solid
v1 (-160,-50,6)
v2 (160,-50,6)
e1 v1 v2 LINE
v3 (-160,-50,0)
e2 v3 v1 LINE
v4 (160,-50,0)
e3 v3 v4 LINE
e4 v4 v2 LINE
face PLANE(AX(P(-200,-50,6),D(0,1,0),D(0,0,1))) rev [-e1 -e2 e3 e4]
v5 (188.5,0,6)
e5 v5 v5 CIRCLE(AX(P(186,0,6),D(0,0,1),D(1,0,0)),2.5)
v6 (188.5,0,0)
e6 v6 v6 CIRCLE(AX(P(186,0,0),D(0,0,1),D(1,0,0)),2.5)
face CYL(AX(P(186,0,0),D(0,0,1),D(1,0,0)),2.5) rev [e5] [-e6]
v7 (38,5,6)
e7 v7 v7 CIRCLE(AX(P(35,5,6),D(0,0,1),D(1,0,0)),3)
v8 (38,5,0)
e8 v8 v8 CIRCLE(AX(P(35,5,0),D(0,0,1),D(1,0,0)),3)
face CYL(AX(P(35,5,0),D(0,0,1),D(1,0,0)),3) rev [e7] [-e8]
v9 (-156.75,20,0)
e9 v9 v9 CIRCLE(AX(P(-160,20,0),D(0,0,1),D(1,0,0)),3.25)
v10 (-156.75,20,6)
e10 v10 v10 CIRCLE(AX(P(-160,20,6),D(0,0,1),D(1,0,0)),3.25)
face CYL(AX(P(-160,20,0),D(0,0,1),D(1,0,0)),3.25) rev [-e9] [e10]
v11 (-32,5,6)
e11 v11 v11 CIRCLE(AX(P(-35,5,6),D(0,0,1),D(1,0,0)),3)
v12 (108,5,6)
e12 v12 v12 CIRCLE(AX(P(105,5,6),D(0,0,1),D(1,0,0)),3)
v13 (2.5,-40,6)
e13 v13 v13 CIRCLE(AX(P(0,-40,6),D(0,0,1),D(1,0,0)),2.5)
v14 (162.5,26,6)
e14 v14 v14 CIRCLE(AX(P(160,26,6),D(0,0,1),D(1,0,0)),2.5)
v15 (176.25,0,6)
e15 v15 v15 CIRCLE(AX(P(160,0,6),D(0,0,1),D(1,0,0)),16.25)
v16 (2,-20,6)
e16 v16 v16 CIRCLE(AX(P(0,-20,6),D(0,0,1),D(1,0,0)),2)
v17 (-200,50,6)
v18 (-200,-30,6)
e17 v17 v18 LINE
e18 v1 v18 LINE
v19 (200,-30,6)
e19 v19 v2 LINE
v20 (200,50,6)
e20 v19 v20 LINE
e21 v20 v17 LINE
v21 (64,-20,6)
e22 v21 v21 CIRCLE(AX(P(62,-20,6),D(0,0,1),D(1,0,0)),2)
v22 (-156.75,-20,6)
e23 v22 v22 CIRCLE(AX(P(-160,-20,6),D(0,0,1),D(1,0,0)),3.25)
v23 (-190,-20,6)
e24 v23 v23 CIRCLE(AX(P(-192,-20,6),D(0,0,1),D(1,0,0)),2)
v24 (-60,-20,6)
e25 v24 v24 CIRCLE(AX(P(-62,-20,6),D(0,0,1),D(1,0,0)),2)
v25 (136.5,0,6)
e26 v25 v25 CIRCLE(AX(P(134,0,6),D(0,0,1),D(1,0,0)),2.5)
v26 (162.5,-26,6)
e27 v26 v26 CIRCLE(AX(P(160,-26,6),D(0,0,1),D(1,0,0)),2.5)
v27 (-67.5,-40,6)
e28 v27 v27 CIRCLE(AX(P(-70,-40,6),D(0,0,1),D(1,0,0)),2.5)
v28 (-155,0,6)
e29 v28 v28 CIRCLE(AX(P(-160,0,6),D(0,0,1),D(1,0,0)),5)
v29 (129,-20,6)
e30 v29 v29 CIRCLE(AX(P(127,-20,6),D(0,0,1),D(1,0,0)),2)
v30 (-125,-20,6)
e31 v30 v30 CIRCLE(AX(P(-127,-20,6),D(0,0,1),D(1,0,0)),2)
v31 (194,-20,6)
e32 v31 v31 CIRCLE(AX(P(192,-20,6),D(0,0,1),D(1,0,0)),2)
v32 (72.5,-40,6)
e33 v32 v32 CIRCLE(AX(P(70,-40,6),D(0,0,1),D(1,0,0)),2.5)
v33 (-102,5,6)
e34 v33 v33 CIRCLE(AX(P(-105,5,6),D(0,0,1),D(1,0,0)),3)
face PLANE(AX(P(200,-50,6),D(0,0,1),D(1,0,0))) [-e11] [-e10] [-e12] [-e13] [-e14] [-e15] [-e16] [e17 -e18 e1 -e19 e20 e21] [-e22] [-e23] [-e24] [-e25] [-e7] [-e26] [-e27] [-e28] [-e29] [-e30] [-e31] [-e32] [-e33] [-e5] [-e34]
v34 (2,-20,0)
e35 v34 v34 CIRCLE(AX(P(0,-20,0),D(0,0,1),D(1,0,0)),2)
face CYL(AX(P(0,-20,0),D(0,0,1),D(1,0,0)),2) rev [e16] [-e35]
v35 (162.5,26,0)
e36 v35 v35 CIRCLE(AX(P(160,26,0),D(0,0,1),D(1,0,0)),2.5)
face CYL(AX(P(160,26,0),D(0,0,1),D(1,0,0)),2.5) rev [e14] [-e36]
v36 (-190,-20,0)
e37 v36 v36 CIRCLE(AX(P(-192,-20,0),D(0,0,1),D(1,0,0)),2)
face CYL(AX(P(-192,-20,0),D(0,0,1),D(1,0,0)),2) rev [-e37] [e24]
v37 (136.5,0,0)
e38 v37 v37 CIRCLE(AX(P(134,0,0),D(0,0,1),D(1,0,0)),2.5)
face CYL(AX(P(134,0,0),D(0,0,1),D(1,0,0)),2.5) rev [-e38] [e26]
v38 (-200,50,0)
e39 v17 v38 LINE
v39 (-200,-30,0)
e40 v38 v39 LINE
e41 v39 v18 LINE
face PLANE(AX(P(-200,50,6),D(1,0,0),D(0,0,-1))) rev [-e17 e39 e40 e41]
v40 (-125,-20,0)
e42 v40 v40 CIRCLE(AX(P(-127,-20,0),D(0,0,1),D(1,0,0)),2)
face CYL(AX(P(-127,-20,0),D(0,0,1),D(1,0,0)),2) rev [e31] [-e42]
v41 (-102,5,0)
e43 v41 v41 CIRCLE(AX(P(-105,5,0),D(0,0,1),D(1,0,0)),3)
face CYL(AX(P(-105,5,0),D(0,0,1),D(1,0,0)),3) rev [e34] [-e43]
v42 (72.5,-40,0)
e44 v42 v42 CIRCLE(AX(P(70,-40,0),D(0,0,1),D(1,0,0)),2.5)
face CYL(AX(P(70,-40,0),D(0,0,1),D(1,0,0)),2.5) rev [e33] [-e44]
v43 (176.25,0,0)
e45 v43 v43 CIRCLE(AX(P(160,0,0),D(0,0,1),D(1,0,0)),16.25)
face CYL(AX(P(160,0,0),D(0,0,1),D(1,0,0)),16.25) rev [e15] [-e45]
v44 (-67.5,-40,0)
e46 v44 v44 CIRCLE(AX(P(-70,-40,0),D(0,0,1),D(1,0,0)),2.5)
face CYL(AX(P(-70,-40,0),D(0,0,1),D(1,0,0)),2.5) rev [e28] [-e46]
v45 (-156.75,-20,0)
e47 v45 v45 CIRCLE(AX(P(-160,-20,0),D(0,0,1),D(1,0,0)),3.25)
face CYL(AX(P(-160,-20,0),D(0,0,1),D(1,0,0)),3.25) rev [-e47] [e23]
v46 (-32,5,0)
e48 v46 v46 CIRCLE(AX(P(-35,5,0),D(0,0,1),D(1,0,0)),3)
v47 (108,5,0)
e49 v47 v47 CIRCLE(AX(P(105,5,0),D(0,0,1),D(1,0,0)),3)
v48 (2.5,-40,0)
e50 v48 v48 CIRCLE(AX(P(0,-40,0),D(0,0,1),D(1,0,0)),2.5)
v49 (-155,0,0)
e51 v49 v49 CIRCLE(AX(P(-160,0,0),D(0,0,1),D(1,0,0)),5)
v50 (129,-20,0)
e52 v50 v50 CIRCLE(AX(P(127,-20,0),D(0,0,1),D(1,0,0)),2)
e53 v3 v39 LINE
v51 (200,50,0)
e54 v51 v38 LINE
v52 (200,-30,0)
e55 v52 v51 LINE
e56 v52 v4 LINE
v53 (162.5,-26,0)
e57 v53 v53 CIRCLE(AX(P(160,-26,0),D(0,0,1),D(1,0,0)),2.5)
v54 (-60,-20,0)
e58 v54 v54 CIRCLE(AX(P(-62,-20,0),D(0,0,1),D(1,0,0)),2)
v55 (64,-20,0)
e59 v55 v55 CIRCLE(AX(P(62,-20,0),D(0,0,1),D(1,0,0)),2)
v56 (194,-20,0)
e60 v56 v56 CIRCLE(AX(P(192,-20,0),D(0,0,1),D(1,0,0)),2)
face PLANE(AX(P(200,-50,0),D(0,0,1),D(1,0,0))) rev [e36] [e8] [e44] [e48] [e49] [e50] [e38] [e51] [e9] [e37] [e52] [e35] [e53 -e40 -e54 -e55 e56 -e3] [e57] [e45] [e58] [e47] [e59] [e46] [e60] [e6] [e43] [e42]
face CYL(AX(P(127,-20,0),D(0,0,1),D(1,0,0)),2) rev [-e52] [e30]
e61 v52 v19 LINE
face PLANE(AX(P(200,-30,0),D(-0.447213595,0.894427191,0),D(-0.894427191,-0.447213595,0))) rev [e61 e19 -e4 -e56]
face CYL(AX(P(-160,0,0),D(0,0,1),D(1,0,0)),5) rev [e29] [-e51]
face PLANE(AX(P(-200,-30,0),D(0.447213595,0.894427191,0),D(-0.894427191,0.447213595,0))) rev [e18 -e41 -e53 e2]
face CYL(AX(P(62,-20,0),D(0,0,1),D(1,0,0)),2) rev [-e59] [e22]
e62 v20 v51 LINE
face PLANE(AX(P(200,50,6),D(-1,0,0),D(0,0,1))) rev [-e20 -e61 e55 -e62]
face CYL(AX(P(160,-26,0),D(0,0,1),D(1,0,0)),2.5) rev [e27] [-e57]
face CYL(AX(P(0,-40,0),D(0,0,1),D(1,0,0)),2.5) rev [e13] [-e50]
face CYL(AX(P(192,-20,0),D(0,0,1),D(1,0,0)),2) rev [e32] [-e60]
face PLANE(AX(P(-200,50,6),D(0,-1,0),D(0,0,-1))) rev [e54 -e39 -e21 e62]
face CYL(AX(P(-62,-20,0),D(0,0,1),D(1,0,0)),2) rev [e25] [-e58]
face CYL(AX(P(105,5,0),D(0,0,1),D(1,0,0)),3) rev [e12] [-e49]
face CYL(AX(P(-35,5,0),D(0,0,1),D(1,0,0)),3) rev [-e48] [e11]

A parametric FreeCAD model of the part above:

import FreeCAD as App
import Part
import Sketcher
from FreeCAD import Vector
Q = App.Units.Quantity

doc = App.newDocument("Part")
body = doc.addObject("PartDesign::Body", "Body")

# Sketch on XY plane
sketch1 = body.newObject("Sketcher::SketchObject", "Sketch")
sketch1.AttachmentSupport = (doc.getObject("XY_Plane"), [""])
sketch1.MapMode = "FlatFace"
sketch1.addGeometry(Part.LineSegment(Vector(-200, 50, 0), Vector(-200, -50, 0)), False)
sketch1.addGeometry(Part.LineSegment(Vector(-200, -50, 0), Vector(200, -50, 0)), False)
sketch1.addGeometry(Part.LineSegment(Vector(200, -50, 0), Vector(200, 50, 0)), False)
sketch1.addGeometry(Part.LineSegment(Vector(200, 50, 0), Vector(-200, 50, 0)), False)
sketch1.addConstraint(Sketcher.Constraint("Coincident", 0, 2, 1, 1))
sketch1.addConstraint(Sketcher.Constraint("Coincident", 1, 2, 2, 1))
sketch1.addConstraint(Sketcher.Constraint("Coincident", 2, 2, 3, 1))
sketch1.addConstraint(Sketcher.Constraint("Coincident", 3, 2, 0, 1))
sketch1.addConstraint(Sketcher.Constraint("Vertical", 0))
sketch1.addConstraint(Sketcher.Constraint("Horizontal", 1))
sketch1.addConstraint(Sketcher.Constraint("Vertical", 2))
sketch1.addConstraint(Sketcher.Constraint("Horizontal", 3))
sketch1.addConstraint(Sketcher.Constraint("Symmetric", 0, 2, 2, 2, -1, 1))
sketch1.addConstraint(Sketcher.Constraint("DistanceX", 1, 1, 1, 2, Q("400 mm")))
sketch1.addConstraint(Sketcher.Constraint("DistanceY", 0, 2, 0, 1, Q("100 mm")))
pad1 = body.newObject("PartDesign::Pad", "Pad")
pad1.Profile = sketch1
pad1.Length = 6

# Sketch on XY plane
sketch2 = body.newObject("Sketcher::SketchObject", "Sketch001")
sketch2.AttachmentSupport = (doc.getObject("XY_Plane"), [""])
sketch2.MapMode = "FlatFace"
sketch2.AttachmentOffset = App.Placement(Vector(0, 0, 6), App.Rotation())
sketch2.addGeometry(Part.Circle(Vector(-160, 0, 0), Vector(0, 0, 1), 5), False)
sketch2.addGeometry(Part.Circle(Vector(-160, 20, 0), Vector(0, 0, 1), 3.2), False)
sketch2.addGeometry(Part.Circle(Vector(-160, -20, 0), Vector(0, 0, 1), 3.2), False)
sketch2.addGeometry(Part.Circle(Vector(160, 0, 0), Vector(0, 0, 1), 16.2), False)
sketch2.addGeometry(Part.Circle(Vector(160, 26, 0), Vector(0, 0, 1), 2.5), False)
sketch2.addGeometry(Part.Circle(Vector(134, 0, 0), Vector(0, 0, 1), 2.5), False)
sketch2.addGeometry(Part.Circle(Vector(186, 0, 0), Vector(0, 0, 1), 2.5), False)
sketch2.addGeometry(Part.Circle(Vector(160, -26, 0), Vector(0, 0, 1), 2.5), False)
sketch2.addGeometry(Part.LineSegment(Vector(-160, -50, 0), Vector(-200, -30, 0)), False)
sketch2.addGeometry(Part.LineSegment(Vector(-200, -30, 0), Vector(-200, -50, 0)), False)
sketch2.addGeometry(Part.LineSegment(Vector(-200, -50, 0), Vector(-160, -50, 0)), False)
sketch2.addGeometry(Part.LineSegment(Vector(200, -50, 0), Vector(200, -30, 0)), False)
sketch2.addGeometry(Part.LineSegment(Vector(200, -30, 0), Vector(160, -50, 0)), False)
sketch2.addGeometry(Part.LineSegment(Vector(160, -50, 0), Vector(200, -50, 0)), False)
sketch2.addConstraint(Sketcher.Constraint("Coincident", 8, 2, 9, 1))
sketch2.addConstraint(Sketcher.Constraint("Coincident", 9, 2, 10, 1))
sketch2.addConstraint(Sketcher.Constraint("Coincident", 10, 2, 8, 1))
sketch2.addConstraint(Sketcher.Constraint("Coincident", 11, 2, 12, 1))
sketch2.addConstraint(Sketcher.Constraint("Coincident", 12, 2, 13, 1))
sketch2.addConstraint(Sketcher.Constraint("Coincident", 13, 2, 11, 1))
sketch2.addConstraint(Sketcher.Constraint("Vertical", 9))
sketch2.addConstraint(Sketcher.Constraint("Horizontal", 10))
sketch2.addConstraint(Sketcher.Constraint("Vertical", 11))
sketch2.addConstraint(Sketcher.Constraint("Horizontal", 13))
sketch2.addConstraint(Sketcher.Constraint("Equal", 1, 2))
sketch2.addConstraint(Sketcher.Constraint("Equal", 4, 5))
sketch2.addConstraint(Sketcher.Constraint("Equal", 5, 6))
sketch2.addConstraint(Sketcher.Constraint("Equal", 6, 7))
sketch2.addConstraint(Sketcher.Constraint("Symmetric", 0, 3, 3, 3, -1, 1))
sketch2.addConstraint(Sketcher.Constraint("Symmetric", 8, 2, 11, 2, -2))
sketch2.addConstraint(Sketcher.Constraint("Symmetric", 10, 2, 12, 2, -2))
sketch2.addConstraint(Sketcher.Constraint("Symmetric", 1, 3, 2, 3, -1))
sketch2.addConstraint(Sketcher.Constraint("Symmetric", 4, 3, 7, 3, -1))
sketch2.addConstraint(Sketcher.Constraint("PointOnObject", 0, 3, -1))
sketch2.addConstraint(Sketcher.Constraint("PointOnObject", 5, 3, -1))
sketch2.addConstraint(Sketcher.Constraint("PointOnObject", 6, 3, -1))
sketch2.addConstraint(Sketcher.Constraint("Vertical", 0, 3, 1, 3))
sketch2.addConstraint(Sketcher.Constraint("Vertical", 3, 3, 4, 3))
sketch2.addConstraint(Sketcher.Constraint("Vertical", 2, 3, 10, 2))
sketch2.addConstraint(Sketcher.Constraint("Diameter", 0, Q("10 mm")))
sketch2.addConstraint(Sketcher.Constraint("Diameter", 4, Q("5 mm")))
sketch2.addConstraint(Sketcher.Constraint("Diameter", 1, Q("6.5 mm")))
sketch2.addConstraint(Sketcher.Constraint("Diameter", 3, Q("32.5 mm")))
sketch2.addConstraint(Sketcher.Constraint("DistanceX", 10, 1, 10, 2, Q("40 mm")))
sketch2.addConstraint(Sketcher.Constraint("DistanceY", 9, 2, 9, 1, Q("20 mm")))
sketch2.addConstraint(Sketcher.Constraint("DistanceX", 0, 3, -1, 1, Q("160 mm")))
sketch2.addConstraint(Sketcher.Constraint("DistanceY", -1, 1, 1, 3, Q("20 mm")))
sketch2.addConstraint(Sketcher.Constraint("DistanceY", -1, 1, 4, 3, Q("26 mm")))
sketch2.addConstraint(Sketcher.Constraint("DistanceX", -1, 1, 5, 3, Q("134 mm")))
sketch2.addConstraint(Sketcher.Constraint("DistanceX", -1, 1, 6, 3, Q("186 mm")))
sketch2.addConstraint(Sketcher.Constraint("DistanceY", 8, 2, -1, 1, Q("30 mm")))
pocket1 = body.newObject("PartDesign::Pocket", "Pocket")
pocket1.Profile = sketch2
pocket1.Type = "ThroughAll"

# Sketch on XY plane
sketch3 = body.newObject("Sketcher::SketchObject", "Sketch002")
sketch3.AttachmentSupport = (doc.getObject("XY_Plane"), [""])
sketch3.MapMode = "FlatFace"
sketch3.AttachmentOffset = App.Placement(Vector(0, 0, 6), App.Rotation())
sketch3.addGeometry(Part.Circle(Vector(-105, 5, 0), Vector(0, 0, 1), 3), False)
sketch3.addGeometry(Part.Circle(Vector(-35, 5, 0), Vector(0, 0, 1), 3), False)
sketch3.addGeometry(Part.Circle(Vector(35, 5, 0), Vector(0, 0, 1), 3), False)
sketch3.addGeometry(Part.Circle(Vector(105, 5, 0), Vector(0, 0, 1), 3), False)
sketch3.addGeometry(Part.Circle(Vector(-62, -20, 0), Vector(0, 0, 1), 2), False)
sketch3.addGeometry(Part.Circle(Vector(0, -20, 0), Vector(0, 0, 1), 2), False)
sketch3.addGeometry(Part.Circle(Vector(62, -20, 0), Vector(0, 0, 1), 2), False)
sketch3.addGeometry(Part.Circle(Vector(-192, -20, 0), Vector(0, 0, 1), 2), False)
sketch3.addGeometry(Part.Circle(Vector(127, -20, 0), Vector(0, 0, 1), 2), False)
sketch3.addGeometry(Part.Circle(Vector(-127, -20, 0), Vector(0, 0, 1), 2), False)
sketch3.addGeometry(Part.Circle(Vector(192, -20, 0), Vector(0, 0, 1), 2), False)
sketch3.addGeometry(Part.Circle(Vector(-70, -40, 0), Vector(0, 0, 1), 2.5), False)
sketch3.addGeometry(Part.Circle(Vector(0, -40, 0), Vector(0, 0, 1), 2.5), False)
sketch3.addGeometry(Part.Circle(Vector(70, -40, 0), Vector(0, 0, 1), 2.5), False)
sketch3.addConstraint(Sketcher.Constraint("Equal", 0, 1))
sketch3.addConstraint(Sketcher.Constraint("Equal", 1, 2))
sketch3.addConstraint(Sketcher.Constraint("Equal", 2, 3))
sketch3.addConstraint(Sketcher.Constraint("Equal", 4, 5))
sketch3.addConstraint(Sketcher.Constraint("Equal", 5, 6))
sketch3.addConstraint(Sketcher.Constraint("Equal", 6, 7))
sketch3.addConstraint(Sketcher.Constraint("Equal", 7, 8))
sketch3.addConstraint(Sketcher.Constraint("Equal", 8, 9))
sketch3.addConstraint(Sketcher.Constraint("Equal", 9, 10))
sketch3.addConstraint(Sketcher.Constraint("Equal", 11, 12))
sketch3.addConstraint(Sketcher.Constraint("Equal", 12, 13))
sketch3.addConstraint(Sketcher.Constraint("Symmetric", 1, 3, 2, 3, -2))
sketch3.addConstraint(Sketcher.Constraint("Symmetric", 0, 3, 3, 3, -2))
sketch3.addConstraint(Sketcher.Constraint("Symmetric", 4, 3, 6, 3, -2))
sketch3.addConstraint(Sketcher.Constraint("Symmetric", 8, 3, 9, 3, -2))
sketch3.addConstraint(Sketcher.Constraint("Symmetric", 7, 3, 10, 3, -2))
sketch3.addConstraint(Sketcher.Constraint("Symmetric", 11, 3, 13, 3, -2))
sketch3.addConstraint(Sketcher.Constraint("PointOnObject", 5, 3, -2))
sketch3.addConstraint(Sketcher.Constraint("PointOnObject", 12, 3, -2))
sketch3.addConstraint(Sketcher.Constraint("Horizontal", 0, 3, 1, 3))
sketch3.addConstraint(Sketcher.Constraint("Horizontal", 4, 3, 5, 3))
sketch3.addConstraint(Sketcher.Constraint("Horizontal", 6, 3, 7, 3))
sketch3.addConstraint(Sketcher.Constraint("Horizontal", 7, 3, 8, 3))
sketch3.addConstraint(Sketcher.Constraint("Horizontal", 11, 3, 12, 3))
sketch3.addConstraint(Sketcher.Constraint("Diameter", 0, Q("6 mm")))
sketch3.addConstraint(Sketcher.Constraint("Diameter", 4, Q("4 mm")))
sketch3.addConstraint(Sketcher.Constraint("Diameter", 11, Q("5 mm")))
sketch3.addConstraint(Sketcher.Constraint("DistanceX", 0, 3, -1, 1, Q("105 mm")))
sketch3.addConstraint(Sketcher.Constraint("DistanceY", -1, 1, 0, 3, Q("5 mm")))
sketch3.addConstraint(Sketcher.Constraint("DistanceX", 1, 3, -1, 1, Q("35 mm")))
sketch3.addConstraint(Sketcher.Constraint("DistanceX", 4, 3, -1, 1, Q("62 mm")))
sketch3.addConstraint(Sketcher.Constraint("DistanceY", 4, 3, -1, 1, Q("20 mm")))
sketch3.addConstraint(Sketcher.Constraint("DistanceX", 7, 3, -1, 1, Q("192 mm")))
sketch3.addConstraint(Sketcher.Constraint("DistanceX", -1, 1, 8, 3, Q("127 mm")))
sketch3.addConstraint(Sketcher.Constraint("DistanceX", 11, 3, -1, 1, Q("70 mm")))
sketch3.addConstraint(Sketcher.Constraint("DistanceY", 11, 3, -1, 1, Q("40 mm")))
pocket2 = body.newObject("PartDesign::Pocket", "Pocket001")
pocket2.Profile = sketch3
pocket2.Type = "ThroughAll"

doc.recompute()
